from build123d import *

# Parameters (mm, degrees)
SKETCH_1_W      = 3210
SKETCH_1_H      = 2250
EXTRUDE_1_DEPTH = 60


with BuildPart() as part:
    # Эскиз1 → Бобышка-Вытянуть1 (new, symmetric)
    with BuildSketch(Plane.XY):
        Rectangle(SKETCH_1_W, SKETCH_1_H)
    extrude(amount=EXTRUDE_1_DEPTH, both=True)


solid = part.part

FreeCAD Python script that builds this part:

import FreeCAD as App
import Part
import Sketcher
Q = App.Units.Quantity

doc = App.newDocument("Part")
body = doc.addObject("PartDesign::Body", "Body")

# Sketch on XY plane
sketch1 = body.newObject("Sketcher::SketchObject", "Sketch")
sketch1.AttachmentSupport = (doc.getObject("XY_Plane"), [""])
sketch1.MapMode = "FlatFace"
sketch1.addGeometry([
    Part.LineSegment(App.Vector(-1605, 1125, 0), App.Vector(-1605, -1125, 0)),
    Part.LineSegment(App.Vector(-1605, -1125, 0), App.Vector(1605, -1125, 0)),
    Part.LineSegment(App.Vector(1605, -1125, 0), App.Vector(1605, 1125, 0)),
    Part.LineSegment(App.Vector(1605, 1125, 0), App.Vector(-1605, 1125, 0)),
], False)
sketch1.addConstraint([
    Sketcher.Constraint("Coincident", 0, 2, 1, 1),
    Sketcher.Constraint("Coincident", 1, 2, 2, 1),
    Sketcher.Constraint("Coincident", 2, 2, 3, 1),
    Sketcher.Constraint("Coincident", 3, 2, 0, 1),
    Sketcher.Constraint("Vertical", 0),
    Sketcher.Constraint("Horizontal", 1),
    Sketcher.Constraint("Vertical", 2),
    Sketcher.Constraint("Horizontal", 3),
    Sketcher.Constraint("Symmetric", 0, 2, 2, 2, -1, 1),
    Sketcher.Constraint("DistanceX", 1, 1, 1, 2, Q("3210 mm")),
    Sketcher.Constraint("DistanceY", 0, 2, 0, 1, Q("2250 mm")),
])
pad1 = body.newObject("PartDesign::Pad", "Pad")
pad1.Profile = sketch1
pad1.Length = 120
pad1.Midplane = True

doc.recompute()
